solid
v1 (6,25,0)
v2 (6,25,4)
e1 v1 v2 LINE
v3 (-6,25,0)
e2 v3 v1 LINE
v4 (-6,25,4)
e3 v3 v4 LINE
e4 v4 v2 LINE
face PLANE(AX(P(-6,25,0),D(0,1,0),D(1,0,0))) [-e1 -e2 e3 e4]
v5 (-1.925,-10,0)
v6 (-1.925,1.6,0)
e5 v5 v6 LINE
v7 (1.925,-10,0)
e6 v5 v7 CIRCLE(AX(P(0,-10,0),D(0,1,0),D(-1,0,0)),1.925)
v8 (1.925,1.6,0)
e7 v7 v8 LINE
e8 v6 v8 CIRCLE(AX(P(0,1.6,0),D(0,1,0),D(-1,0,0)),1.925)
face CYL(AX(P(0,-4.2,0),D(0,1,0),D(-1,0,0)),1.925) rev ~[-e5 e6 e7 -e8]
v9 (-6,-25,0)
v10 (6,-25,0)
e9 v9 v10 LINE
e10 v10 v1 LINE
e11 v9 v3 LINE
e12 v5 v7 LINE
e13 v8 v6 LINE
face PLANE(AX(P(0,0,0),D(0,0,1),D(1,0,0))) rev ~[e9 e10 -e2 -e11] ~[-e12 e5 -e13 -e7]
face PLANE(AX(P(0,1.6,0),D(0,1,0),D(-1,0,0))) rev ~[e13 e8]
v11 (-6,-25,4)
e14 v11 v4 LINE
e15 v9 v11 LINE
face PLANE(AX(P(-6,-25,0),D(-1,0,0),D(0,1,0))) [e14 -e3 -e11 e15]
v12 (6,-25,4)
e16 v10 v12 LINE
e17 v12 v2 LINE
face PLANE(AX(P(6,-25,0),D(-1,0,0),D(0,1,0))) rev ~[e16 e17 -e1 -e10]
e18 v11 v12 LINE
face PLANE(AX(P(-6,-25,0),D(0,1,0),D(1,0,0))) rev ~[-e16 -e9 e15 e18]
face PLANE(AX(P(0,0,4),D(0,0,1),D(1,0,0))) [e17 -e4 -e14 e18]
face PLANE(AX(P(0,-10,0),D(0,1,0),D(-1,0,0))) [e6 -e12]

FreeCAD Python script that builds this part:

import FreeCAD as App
import Part
import Sketcher

V = App.Vector
Q = App.Units.Quantity

doc = App.newDocument("Part")
body = doc.addObject("PartDesign::Body", "Body")

sketch1 = doc.addObject("Sketcher::SketchObject", "Sketch")
body.addObject(sketch1)
sketch1.AttachmentSupport = (doc.XY_Plane, [""])
sketch1.MapMode = "FlatFace"
sketch1.addGeometry([
    Part.LineSegment(V(-6, 25, 0), V(-6, -25, 0)),
    Part.LineSegment(V(-6, -25, 0), V(6, -25, 0)),
    Part.LineSegment(V(6, -25, 0), V(6, 25, 0)),
    Part.LineSegment(V(6, 25, 0), V(-6, 25, 0)),
], False)
sketch1.addConstraint([
    Sketcher.Constraint("Coincident", 0, 2, 1, 1),
    Sketcher.Constraint("Coincident", 1, 2, 2, 1),
    Sketcher.Constraint("Coincident", 2, 2, 3, 1),
    Sketcher.Constraint("Coincident", 3, 2, 0, 1),
    Sketcher.Constraint("Vertical", 0),
    Sketcher.Constraint("Horizontal", 1),
    Sketcher.Constraint("Vertical", 2),
    Sketcher.Constraint("Horizontal", 3),
    Sketcher.Constraint("Symmetric", 0, 2, 2, 2, -1, 1),
    Sketcher.Constraint("DistanceX", 1, 1, 1, 2, Q("12 mm")),
    Sketcher.Constraint("DistanceY", 0, 2, 0, 1, Q("50 mm")),
])
pad1 = doc.addObject("PartDesign::Pad", "Pad")
body.addObject(pad1)
pad1.Profile = sketch1
pad1.Length = 4

sketch2 = doc.addObject("Sketcher::SketchObject", "Sketch001")
body.addObject(sketch2)
sketch2.AttachmentSupport = (doc.XY_Plane, [""])
sketch2.MapMode = "FlatFace"
sketch2.addGeometry([
    Part.LineSegment(V(-1.925, 1.6, 0), V(-1.925, -10, 0)),
    Part.LineSegment(V(-1.925, -10, 0), V(0, -10, 0)),
    Part.LineSegment(V(0, -10, 0), V(0, 1.6, 0)),
    Part.LineSegment(V(0, 1.6, 0), V(-1.925, 1.6, 0)),
], False)
sketch2.addConstraint([
    Sketcher.Constraint("Coincident", 0, 2, 1, 1),
    Sketcher.Constraint("Coincident", 1, 2, 2, 1),
    Sketcher.Constraint("Coincident", 2, 2, 3, 1),
    Sketcher.Constraint("Coincident", 3, 2, 0, 1),
    Sketcher.Constraint("Vertical", 0),
    Sketcher.Constraint("Horizontal", 1),
    Sketcher.Constraint("Vertical", 2),
    Sketcher.Constraint("Horizontal", 3),
    Sketcher.Constraint("PointOnObject", 1, 2, -2),
    Sketcher.Constraint("DistanceY", 0, 2, 0, 1, Q("11.6 mm")),
    Sketcher.Constraint("DistanceY", 0, 2, -1, 1, Q("10 mm")),
    Sketcher.Constraint("DistanceX", 1, 1, 1, 2, Q("1.925 mm")),
])
groove = doc.addObject("PartDesign::Groove", "Groove")
body.addObject(groove)
groove.Profile = sketch2
groove.ReferenceAxis = (sketch2, ["V_Axis"])
groove.Angle = 180

doc.recompute()
